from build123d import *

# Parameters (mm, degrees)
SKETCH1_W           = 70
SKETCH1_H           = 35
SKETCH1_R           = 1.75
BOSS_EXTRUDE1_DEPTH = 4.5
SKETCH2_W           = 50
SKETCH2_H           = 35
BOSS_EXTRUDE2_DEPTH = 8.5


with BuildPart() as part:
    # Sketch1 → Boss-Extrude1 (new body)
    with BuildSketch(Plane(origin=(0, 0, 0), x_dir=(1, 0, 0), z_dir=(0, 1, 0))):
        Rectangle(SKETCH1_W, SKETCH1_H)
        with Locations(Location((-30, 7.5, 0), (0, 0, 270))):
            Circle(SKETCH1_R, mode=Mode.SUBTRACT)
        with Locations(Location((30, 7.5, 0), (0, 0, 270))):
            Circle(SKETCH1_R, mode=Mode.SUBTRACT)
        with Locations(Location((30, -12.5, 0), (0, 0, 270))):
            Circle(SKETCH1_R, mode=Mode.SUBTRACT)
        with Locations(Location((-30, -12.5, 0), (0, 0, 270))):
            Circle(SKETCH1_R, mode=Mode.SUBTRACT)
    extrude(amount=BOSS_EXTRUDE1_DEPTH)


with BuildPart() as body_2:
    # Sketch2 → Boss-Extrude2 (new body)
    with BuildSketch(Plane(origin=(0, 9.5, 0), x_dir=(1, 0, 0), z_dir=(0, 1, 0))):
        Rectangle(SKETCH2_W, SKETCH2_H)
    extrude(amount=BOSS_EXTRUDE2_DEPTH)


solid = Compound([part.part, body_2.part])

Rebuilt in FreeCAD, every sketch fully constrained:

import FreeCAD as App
import Part
import Sketcher

V = App.Vector

doc = App.newDocument("Part")
body = doc.addObject("PartDesign::Body", "Body")

sketch1 = body.newObject("Sketcher::SketchObject", "Sketch")
sketch1.AttachmentSupport = (doc.getObject("XZ_Plane"), [""])
sketch1.MapMode = "FlatFace"
sketch1.addGeometry([
    Part.LineSegment(V(-35, -17.5, 0), V(-35, 17.5, 0)),
    Part.LineSegment(V(-35, 17.5, 0), V(35, 17.5, 0)),
    Part.LineSegment(V(35, 17.5, 0), V(35, -17.5, 0)),
    Part.LineSegment(V(35, -17.5, 0), V(-35, -17.5, 0)),
    Part.Circle(V(-30, 12.5, 0), V(0, 0, 1), 1.8),
    Part.Circle(V(30, 12.5, 0), V(0, 0, 1), 1.8),
    Part.Circle(V(-30, -7.5, 0), V(0, 0, 1), 1.8),
    Part.Circle(V(30, -7.5, 0), V(0, 0, 1), 1.8),
], False)
sketch1.addConstraint([
    Sketcher.Constraint("Coincident", 0, 2, 1, 1),
    Sketcher.Constraint("Coincident", 1, 2, 2, 1),
    Sketcher.Constraint("Coincident", 2, 2, 3, 1),
    Sketcher.Constraint("Coincident", 3, 2, 0, 1),
    Sketcher.Constraint("Vertical", 0),
    Sketcher.Constraint("Horizontal", 1),
    Sketcher.Constraint("Vertical", 2),
    Sketcher.Constraint("Horizontal", 3),
    Sketcher.Constraint("Equal", 4, 5),
    Sketcher.Constraint("Equal", 5, 6),
    Sketcher.Constraint("Equal", 6, 7),
    Sketcher.Constraint("Symmetric", 0, 2, 2, 2, -1, 1),
    Sketcher.Constraint("Symmetric", 4, 3, 5, 3, -2),
    Sketcher.Constraint("Symmetric", 6, 3, 7, 3, -2),
    Sketcher.Constraint("Vertical", 4, 3, 6, 3),
    Sketcher.Constraint("Diameter", 4, 3.5),
    Sketcher.Constraint("DistanceX", 1, 1, 1, 2, 70.0),
    Sketcher.Constraint("DistanceY", 0, 1, 0, 2, 35.0),
    Sketcher.Constraint("DistanceX", 4, 3, -1, 1, 30.0),
    Sketcher.Constraint("DistanceY", 6, 3, 4, 3, 20.0),
    Sketcher.Constraint("DistanceY", 4, 3, 0, 2, 5.0),
])
pad1 = body.newObject("PartDesign::Pad", "Pad")
pad1.Profile = sketch1
pad1.Length = 4.5
pad1.Reversed = True
body2 = doc.addObject("PartDesign::Body", "Body001")

sketch2 = body2.newObject("Sketcher::SketchObject", "Sketch001")
sketch2.AttachmentSupport = (doc.getObject("XZ_Plane001"), [""])
sketch2.MapMode = "FlatFace"
sketch2.AttachmentOffset = App.Placement(V(0, 0, -9.5), App.Rotation())
sketch2.addGeometry([
    Part.LineSegment(V(-25, -18, 0), V(-25, 18, 0)),
    Part.LineSegment(V(-25, 18, 0), V(25, 18, 0)),
    Part.LineSegment(V(25, 18, 0), V(25, -18, 0)),
    Part.LineSegment(V(25, -18, 0), V(-25, -18, 0)),
], False)
sketch2.addConstraint([
    Sketcher.Constraint("Coincident", 0, 2, 1, 1),
    Sketcher.Constraint("Coincident", 1, 2, 2, 1),
    Sketcher.Constraint("Coincident", 2, 2, 3, 1),
    Sketcher.Constraint("Coincident", 3, 2, 0, 1),
    Sketcher.Constraint("Vertical", 0),
    Sketcher.Constraint("Horizontal", 1),
    Sketcher.Constraint("Vertical", 2),
    Sketcher.Constraint("Horizontal", 3),
    Sketcher.Constraint("Symmetric", 0, 2, 2, 2, -1, 1),
    Sketcher.Constraint("DistanceX", 1, 1, 1, 2, 50.0),
    Sketcher.Constraint("DistanceY", 0, 1, 0, 2, 35.0),
])
pad2 = body2.newObject("PartDesign::Pad", "Pad001")
pad2.Profile = sketch2
pad2.Length = 8.5
pad2.Reversed = True

doc.recompute()
